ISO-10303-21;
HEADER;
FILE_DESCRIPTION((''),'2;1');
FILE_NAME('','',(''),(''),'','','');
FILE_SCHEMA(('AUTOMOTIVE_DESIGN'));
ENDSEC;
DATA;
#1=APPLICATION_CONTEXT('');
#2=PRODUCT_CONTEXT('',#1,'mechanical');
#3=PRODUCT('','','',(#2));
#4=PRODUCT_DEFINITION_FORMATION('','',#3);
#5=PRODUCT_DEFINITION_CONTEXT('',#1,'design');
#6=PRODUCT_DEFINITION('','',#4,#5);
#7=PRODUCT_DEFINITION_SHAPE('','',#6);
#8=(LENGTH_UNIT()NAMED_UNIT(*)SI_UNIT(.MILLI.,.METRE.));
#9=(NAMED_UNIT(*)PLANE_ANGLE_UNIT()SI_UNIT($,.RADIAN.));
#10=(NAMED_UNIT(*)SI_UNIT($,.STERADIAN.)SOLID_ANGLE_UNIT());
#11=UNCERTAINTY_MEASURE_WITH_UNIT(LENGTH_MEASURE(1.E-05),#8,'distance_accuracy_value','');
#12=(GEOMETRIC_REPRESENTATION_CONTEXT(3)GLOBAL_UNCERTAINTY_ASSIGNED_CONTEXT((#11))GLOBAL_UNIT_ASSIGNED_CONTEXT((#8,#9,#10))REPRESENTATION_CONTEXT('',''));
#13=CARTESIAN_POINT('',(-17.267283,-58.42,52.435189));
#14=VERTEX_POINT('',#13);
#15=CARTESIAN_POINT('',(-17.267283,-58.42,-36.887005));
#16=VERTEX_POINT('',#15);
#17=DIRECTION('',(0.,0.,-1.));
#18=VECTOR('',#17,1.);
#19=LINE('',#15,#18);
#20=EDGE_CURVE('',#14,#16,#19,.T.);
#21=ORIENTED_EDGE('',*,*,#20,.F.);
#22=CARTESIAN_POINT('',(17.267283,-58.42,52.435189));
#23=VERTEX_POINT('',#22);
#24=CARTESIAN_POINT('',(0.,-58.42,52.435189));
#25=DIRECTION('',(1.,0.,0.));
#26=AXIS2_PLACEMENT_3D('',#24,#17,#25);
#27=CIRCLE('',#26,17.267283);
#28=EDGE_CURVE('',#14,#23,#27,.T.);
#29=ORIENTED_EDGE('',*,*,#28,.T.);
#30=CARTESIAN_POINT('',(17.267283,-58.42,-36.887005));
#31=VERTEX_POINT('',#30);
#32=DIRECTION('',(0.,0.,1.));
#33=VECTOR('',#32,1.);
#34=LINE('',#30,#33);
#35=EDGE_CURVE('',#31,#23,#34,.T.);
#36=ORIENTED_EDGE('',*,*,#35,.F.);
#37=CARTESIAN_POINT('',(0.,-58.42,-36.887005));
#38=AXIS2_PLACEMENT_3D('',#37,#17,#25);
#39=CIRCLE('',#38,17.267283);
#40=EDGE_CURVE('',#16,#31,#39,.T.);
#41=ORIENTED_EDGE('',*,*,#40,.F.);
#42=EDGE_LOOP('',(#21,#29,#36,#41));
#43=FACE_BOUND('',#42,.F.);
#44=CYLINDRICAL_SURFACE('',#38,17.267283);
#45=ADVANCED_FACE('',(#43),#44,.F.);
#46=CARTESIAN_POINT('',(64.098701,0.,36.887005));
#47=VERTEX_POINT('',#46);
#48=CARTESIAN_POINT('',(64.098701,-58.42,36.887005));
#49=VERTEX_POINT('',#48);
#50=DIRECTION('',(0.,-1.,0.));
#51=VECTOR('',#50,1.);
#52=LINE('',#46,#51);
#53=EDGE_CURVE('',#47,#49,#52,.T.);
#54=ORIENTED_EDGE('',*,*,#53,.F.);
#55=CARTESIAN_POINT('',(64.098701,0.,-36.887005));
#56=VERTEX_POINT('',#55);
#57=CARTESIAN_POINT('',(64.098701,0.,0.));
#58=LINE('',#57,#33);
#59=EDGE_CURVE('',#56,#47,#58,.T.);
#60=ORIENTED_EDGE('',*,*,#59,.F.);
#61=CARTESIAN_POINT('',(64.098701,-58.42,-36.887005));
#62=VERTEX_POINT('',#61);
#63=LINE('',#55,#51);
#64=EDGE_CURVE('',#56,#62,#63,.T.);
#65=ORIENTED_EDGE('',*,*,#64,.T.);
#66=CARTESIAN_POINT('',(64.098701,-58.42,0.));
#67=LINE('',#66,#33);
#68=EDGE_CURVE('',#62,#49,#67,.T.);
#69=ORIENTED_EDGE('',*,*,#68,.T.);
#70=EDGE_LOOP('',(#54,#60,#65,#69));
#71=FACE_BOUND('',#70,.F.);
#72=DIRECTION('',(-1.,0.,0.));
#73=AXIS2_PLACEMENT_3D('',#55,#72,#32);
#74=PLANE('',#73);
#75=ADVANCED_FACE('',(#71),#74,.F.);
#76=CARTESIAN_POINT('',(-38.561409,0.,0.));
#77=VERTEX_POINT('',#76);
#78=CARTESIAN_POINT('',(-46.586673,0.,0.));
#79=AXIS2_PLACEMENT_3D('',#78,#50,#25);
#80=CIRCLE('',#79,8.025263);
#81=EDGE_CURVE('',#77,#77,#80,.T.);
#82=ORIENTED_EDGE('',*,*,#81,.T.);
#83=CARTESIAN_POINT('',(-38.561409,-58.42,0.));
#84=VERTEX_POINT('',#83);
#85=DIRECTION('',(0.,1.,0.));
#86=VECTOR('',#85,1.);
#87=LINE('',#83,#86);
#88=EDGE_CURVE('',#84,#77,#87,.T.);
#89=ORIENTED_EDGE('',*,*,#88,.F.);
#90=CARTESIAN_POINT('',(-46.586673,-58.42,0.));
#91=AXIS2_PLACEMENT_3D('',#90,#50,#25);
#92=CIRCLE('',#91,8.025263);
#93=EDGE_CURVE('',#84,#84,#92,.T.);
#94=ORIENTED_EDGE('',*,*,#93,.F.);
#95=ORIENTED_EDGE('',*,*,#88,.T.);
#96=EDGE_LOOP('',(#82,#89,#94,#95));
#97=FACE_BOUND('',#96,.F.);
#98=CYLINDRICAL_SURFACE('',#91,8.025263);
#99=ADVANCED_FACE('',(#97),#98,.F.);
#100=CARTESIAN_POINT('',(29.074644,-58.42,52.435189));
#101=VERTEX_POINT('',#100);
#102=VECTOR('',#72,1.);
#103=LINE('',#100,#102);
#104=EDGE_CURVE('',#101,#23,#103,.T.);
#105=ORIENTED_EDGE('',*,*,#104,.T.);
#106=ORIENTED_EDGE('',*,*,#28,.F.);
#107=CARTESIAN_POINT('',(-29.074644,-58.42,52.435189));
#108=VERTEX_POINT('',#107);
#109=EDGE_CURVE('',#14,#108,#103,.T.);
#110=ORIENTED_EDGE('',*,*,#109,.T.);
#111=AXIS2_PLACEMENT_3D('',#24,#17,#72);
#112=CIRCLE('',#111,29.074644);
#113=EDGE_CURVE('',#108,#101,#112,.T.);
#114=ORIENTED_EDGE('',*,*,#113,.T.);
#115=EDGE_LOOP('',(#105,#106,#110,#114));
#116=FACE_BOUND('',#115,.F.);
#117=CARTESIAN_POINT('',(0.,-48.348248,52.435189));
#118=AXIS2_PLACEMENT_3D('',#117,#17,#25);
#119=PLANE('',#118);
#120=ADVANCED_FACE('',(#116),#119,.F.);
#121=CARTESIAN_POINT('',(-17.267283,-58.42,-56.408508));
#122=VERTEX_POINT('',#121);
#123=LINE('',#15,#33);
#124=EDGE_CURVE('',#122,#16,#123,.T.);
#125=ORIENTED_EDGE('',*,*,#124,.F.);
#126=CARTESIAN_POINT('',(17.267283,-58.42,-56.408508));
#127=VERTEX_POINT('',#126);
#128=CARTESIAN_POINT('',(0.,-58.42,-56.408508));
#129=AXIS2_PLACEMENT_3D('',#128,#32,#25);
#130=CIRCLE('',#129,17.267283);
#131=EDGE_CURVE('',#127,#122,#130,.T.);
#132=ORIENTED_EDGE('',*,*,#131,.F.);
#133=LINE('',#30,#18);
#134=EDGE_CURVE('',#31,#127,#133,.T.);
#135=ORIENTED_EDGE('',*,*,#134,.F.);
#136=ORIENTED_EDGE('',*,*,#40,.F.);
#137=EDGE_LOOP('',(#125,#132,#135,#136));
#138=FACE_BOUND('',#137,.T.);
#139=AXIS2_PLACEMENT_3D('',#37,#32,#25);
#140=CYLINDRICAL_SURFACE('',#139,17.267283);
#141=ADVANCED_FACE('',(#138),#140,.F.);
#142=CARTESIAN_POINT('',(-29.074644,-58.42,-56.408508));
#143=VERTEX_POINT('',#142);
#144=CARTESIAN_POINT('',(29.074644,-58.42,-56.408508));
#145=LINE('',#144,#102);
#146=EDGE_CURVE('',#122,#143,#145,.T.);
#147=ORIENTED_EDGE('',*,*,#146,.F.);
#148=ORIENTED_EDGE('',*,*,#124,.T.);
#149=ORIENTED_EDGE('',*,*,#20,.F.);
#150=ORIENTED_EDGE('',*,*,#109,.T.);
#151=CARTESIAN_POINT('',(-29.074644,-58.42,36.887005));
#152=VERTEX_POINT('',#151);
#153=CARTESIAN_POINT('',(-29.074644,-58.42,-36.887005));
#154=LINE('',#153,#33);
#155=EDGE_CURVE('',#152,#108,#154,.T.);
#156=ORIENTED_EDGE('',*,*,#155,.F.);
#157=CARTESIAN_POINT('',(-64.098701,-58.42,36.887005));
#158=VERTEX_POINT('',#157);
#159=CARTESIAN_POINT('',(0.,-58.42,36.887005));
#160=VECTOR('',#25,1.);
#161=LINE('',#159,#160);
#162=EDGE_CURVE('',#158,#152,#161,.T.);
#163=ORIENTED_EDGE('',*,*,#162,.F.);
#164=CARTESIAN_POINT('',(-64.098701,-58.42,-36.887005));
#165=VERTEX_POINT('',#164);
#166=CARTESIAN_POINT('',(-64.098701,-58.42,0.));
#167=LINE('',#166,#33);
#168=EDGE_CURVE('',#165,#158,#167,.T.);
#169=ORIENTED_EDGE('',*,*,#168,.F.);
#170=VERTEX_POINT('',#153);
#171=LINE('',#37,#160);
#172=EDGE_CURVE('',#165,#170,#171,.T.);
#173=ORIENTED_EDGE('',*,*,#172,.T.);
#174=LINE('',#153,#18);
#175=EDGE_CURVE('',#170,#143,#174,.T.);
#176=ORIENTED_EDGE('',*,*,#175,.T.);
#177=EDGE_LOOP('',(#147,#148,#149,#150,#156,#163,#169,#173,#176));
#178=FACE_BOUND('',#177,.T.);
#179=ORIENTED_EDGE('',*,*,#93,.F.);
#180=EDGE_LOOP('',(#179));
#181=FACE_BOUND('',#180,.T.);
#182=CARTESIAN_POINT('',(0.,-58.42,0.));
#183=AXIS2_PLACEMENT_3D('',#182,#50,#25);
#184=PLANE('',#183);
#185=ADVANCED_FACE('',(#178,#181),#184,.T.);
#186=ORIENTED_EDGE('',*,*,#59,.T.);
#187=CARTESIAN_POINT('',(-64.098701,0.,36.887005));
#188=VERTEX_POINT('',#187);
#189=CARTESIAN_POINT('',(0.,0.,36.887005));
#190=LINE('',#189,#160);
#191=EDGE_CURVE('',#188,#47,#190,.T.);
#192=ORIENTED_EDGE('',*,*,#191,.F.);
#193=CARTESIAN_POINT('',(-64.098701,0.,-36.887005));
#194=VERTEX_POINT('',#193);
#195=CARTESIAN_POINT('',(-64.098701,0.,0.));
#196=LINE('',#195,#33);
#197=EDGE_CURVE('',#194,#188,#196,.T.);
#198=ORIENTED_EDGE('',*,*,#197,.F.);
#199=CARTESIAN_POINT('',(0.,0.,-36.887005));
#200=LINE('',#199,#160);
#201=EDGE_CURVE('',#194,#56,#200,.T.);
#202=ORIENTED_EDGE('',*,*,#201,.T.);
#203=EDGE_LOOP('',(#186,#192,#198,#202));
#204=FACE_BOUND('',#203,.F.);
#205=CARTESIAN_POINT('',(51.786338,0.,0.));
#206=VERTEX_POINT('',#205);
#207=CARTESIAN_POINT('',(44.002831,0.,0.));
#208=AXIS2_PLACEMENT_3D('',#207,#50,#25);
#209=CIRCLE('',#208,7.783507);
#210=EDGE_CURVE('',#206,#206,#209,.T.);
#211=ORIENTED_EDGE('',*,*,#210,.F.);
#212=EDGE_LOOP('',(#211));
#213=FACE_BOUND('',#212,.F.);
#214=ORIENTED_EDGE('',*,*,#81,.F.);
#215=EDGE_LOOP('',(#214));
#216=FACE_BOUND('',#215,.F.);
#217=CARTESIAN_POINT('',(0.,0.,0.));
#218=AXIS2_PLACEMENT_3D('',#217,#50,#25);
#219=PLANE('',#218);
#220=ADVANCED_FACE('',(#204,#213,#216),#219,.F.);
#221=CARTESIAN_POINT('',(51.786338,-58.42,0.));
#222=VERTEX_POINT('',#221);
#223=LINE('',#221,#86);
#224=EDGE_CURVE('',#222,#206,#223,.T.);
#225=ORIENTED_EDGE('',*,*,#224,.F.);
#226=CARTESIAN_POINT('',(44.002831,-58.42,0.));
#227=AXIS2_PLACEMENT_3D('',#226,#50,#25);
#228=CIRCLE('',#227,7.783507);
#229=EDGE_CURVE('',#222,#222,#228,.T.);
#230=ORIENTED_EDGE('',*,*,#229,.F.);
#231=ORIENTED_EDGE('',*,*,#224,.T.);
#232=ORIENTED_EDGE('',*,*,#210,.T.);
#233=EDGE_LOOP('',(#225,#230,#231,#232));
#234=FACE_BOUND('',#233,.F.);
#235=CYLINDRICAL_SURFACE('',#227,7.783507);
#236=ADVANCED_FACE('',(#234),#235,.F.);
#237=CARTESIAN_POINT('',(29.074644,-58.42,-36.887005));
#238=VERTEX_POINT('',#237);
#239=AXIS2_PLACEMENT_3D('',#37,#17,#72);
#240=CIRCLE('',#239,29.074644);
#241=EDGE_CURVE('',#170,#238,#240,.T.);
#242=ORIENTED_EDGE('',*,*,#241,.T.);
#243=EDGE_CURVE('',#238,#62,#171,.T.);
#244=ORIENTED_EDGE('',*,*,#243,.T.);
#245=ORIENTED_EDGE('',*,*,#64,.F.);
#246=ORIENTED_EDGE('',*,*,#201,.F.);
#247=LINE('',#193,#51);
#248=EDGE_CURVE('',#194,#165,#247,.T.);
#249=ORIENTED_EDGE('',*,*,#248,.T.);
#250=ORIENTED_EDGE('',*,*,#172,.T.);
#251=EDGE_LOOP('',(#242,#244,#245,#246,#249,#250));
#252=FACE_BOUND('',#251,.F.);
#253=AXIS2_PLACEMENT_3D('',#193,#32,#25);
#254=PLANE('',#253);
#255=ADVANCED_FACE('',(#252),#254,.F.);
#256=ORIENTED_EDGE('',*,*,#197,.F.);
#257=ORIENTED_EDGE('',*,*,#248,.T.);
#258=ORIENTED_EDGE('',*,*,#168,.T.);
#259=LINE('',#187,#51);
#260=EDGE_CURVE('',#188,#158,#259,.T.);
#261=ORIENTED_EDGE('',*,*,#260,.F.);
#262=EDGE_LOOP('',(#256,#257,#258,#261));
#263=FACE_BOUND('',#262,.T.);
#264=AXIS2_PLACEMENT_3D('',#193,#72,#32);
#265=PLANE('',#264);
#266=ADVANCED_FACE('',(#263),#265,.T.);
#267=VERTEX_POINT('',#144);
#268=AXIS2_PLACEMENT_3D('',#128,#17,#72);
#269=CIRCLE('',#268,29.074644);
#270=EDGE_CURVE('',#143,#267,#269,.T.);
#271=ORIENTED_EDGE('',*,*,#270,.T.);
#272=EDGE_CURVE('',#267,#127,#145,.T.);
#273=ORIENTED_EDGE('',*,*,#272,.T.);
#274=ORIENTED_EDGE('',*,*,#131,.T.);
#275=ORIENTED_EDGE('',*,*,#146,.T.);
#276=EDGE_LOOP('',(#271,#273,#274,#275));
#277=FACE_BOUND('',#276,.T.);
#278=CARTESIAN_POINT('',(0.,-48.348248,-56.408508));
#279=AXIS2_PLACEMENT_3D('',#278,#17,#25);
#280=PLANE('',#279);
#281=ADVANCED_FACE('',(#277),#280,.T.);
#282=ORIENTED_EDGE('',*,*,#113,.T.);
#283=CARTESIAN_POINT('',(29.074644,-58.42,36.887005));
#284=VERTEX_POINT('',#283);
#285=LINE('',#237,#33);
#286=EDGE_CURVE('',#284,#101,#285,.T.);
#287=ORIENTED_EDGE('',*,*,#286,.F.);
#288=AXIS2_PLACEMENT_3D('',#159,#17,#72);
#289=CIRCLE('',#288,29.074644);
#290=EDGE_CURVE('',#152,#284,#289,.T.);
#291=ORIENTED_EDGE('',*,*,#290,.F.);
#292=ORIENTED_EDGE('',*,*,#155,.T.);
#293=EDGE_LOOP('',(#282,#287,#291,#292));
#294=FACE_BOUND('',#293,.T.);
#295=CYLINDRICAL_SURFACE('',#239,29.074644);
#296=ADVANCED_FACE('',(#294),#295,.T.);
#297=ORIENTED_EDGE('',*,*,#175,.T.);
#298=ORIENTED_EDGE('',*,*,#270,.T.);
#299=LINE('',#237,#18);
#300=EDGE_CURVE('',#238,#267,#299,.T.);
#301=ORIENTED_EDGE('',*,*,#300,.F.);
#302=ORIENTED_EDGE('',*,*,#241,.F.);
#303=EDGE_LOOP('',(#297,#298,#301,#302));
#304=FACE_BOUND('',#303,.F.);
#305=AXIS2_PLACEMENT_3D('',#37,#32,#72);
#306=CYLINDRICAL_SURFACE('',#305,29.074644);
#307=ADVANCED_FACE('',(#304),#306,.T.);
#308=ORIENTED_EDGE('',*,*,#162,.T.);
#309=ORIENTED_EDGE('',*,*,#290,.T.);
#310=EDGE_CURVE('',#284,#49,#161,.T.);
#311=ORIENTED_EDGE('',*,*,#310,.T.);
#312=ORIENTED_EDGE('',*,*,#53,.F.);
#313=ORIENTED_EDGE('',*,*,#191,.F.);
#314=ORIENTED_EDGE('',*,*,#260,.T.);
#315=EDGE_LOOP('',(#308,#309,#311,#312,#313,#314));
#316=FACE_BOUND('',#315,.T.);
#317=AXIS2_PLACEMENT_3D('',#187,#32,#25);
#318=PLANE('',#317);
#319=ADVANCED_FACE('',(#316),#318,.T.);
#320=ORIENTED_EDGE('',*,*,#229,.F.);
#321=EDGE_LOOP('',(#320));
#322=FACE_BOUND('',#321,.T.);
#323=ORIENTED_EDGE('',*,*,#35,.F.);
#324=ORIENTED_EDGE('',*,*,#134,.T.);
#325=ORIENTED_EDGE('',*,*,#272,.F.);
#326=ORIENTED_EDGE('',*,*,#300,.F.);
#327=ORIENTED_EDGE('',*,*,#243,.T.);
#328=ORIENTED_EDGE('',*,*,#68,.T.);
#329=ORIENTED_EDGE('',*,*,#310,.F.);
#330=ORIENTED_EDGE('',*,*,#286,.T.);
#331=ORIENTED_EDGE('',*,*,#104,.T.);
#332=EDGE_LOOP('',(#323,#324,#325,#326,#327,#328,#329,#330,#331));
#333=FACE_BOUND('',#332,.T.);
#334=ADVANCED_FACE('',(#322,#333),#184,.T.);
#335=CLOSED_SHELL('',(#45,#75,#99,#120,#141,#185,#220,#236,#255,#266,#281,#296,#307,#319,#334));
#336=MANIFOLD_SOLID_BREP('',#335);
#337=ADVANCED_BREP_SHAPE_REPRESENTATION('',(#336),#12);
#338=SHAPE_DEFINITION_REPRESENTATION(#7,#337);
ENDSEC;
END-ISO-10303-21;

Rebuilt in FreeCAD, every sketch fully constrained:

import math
import FreeCAD as App
import Part
import Sketcher
from FreeCAD import Vector
Q = App.Units.Quantity


def add_polygon(sketch, points):
    """Adds a closed chain of lines whose ends are joined by coincident constraints."""
    first, n = sketch.GeometryCount, len(points)
    for a, b in zip(points, points[1:] + points[:1]):
        sketch.addGeometry(Part.LineSegment(App.Vector(*a, 0), App.Vector(*b, 0)), False)
    for i in range(n):
        sketch.addConstraint(Sketcher.Constraint("Coincident", first + i, 2, first + (i + 1) % n, 1))

doc = App.newDocument("Part")
body = doc.addObject("PartDesign::Body", "Body")

# Sketch on XZ plane
sketch1 = body.newObject("Sketcher::SketchObject", "Sketch")
sketch1.AttachmentSupport = (doc.getObject("XZ_Plane"), [""])
sketch1.MapMode = "FlatFace"
add_polygon(sketch1, [(-64.098701, 36.887005), (-64.098701, -36.887005), (64.098701, -36.887005), (64.098701, 36.887005)])  # lines 0-3
sketch1.addConstraint([
    Sketcher.Constraint("Vertical", 0),
    Sketcher.Constraint("Horizontal", 1),
    Sketcher.Constraint("Vertical", 2),
    Sketcher.Constraint("Horizontal", 3),
    Sketcher.Constraint("Symmetric", 0, 2, 2, 2, -1, 1),
    Sketcher.Constraint("DistanceX", 1, 1, 1, 2, Q("128.197402 mm")),
    Sketcher.Constraint("DistanceY", 0, 2, 0, 1, Q("73.77401 mm")),
])
pad1 = body.newObject("PartDesign::Pad", "Pad")
pad1.Profile = sketch1
pad1.Length = Q("2.3 in")

# Sketch on XY plane
sketch2 = body.newObject("Sketcher::SketchObject", "Sketch001")
sketch2.AttachmentSupport = (doc.getObject("XY_Plane"), [""])
sketch2.MapMode = "FlatFace"
sketch2.AttachmentOffset = App.Placement(Vector(0, 0, -36.887005), App.Rotation())
sketch2.addGeometry([
    Part.ArcOfCircle(Part.Circle(Vector(0, -58.42, 0), Vector(0, 0, 1), 29.074644), math.radians(0), math.radians(180)),
    Part.LineSegment(Vector(29.074644, -58.42, 0), Vector(-29.074644, -58.42, 0)),
], False)
sketch2.addConstraint([
    Sketcher.Constraint("Coincident", 0, 1, 1, 1),
    Sketcher.Constraint("Coincident", 1, 2, 0, 2),
    Sketcher.Constraint("Horizontal", 1),
    Sketcher.Constraint("PointOnObject", 0, 3, -2),
    Sketcher.Constraint("DistanceY", 0, 3, -1, 1, Q("2.3 in")),
    Sketcher.Constraint("DistanceY", 0, 1, -1, 1, Q("2.3 in")),
    Sketcher.Constraint("Radius", 0, Q("29.074644 mm")),
])
pad2 = body.newObject("PartDesign::Pad", "Pad001")
pad2.Profile = sketch2
pad2.Type = "TwoLengths"
pad2.Length = 19.521503
pad2.Length2 = 89.322194
pad2.Reversed = True

# Sketch on XY plane
sketch3 = body.newObject("Sketcher::SketchObject", "Sketch002")
sketch3.AttachmentSupport = (doc.getObject("XY_Plane"), [""])
sketch3.MapMode = "FlatFace"
sketch3.AttachmentOffset = App.Placement(Vector(0, 0, -36.887005), App.Rotation())
sketch3.addGeometry(Part.Circle(Vector(0, -58.42, 0), Vector(0, 0, 1), 17.267283), False)
sketch3.addConstraint([
    Sketcher.Constraint("PointOnObject", 0, 3, -2),
    Sketcher.Constraint("DistanceY", 0, 3, -1, 1, Q("2.3 in")),
    Sketcher.Constraint("Diameter", 0, Q("34.534566 mm")),
])
pocket1 = body.newObject("PartDesign::Pocket", "Pocket")
pocket1.Profile = sketch3
pocket1.Type = "ThroughAll"
pocket1.Midplane = True

# Sketch on XZ plane
sketch4 = body.newObject("Sketcher::SketchObject", "Sketch003")
sketch4.AttachmentSupport = (doc.getObject("XZ_Plane"), [""])
sketch4.MapMode = "FlatFace"
sketch4.AttachmentOffset = App.Placement(Vector(0, 0, 2.3 * 25.4), App.Rotation())
sketch4.addGeometry(Part.Circle(Vector(44.002831, 0, 0), Vector(0, 0, 1), 7.783507), False)
sketch4.addConstraint([
    Sketcher.Constraint("PointOnObject", 0, 3, -1),
    Sketcher.Constraint("Diameter", 0, Q("15.567014 mm")),
    Sketcher.Constraint("DistanceX", -1, 1, 0, 3, Q("44.002831 mm")),
])
pocket2 = body.newObject("PartDesign::Pocket", "Pocket001")
pocket2.Profile = sketch4
pocket2.Type = "ThroughAll"

# Sketch on XZ plane
sketch5 = body.newObject("Sketcher::SketchObject", "Sketch004")
sketch5.AttachmentSupport = (doc.getObject("XZ_Plane"), [""])
sketch5.MapMode = "FlatFace"
sketch5.AttachmentOffset = App.Placement(Vector(0, 0, 2.3 * 25.4), App.Rotation())
sketch5.addGeometry(Part.Circle(Vector(-46.586673, 0, 0), Vector(0, 0, 1), 8.025263), False)
sketch5.addConstraint([
    Sketcher.Constraint("PointOnObject", 0, 3, -1),
    Sketcher.Constraint("Diameter", 0, Q("16.050527 mm")),
    Sketcher.Constraint("DistanceX", 0, 3, -1, 1, Q("46.586673 mm")),
])
pocket3 = body.newObject("PartDesign::Pocket", "Pocket002")
pocket3.Profile = sketch5
pocket3.Type = "ThroughAll"

doc.recompute()
